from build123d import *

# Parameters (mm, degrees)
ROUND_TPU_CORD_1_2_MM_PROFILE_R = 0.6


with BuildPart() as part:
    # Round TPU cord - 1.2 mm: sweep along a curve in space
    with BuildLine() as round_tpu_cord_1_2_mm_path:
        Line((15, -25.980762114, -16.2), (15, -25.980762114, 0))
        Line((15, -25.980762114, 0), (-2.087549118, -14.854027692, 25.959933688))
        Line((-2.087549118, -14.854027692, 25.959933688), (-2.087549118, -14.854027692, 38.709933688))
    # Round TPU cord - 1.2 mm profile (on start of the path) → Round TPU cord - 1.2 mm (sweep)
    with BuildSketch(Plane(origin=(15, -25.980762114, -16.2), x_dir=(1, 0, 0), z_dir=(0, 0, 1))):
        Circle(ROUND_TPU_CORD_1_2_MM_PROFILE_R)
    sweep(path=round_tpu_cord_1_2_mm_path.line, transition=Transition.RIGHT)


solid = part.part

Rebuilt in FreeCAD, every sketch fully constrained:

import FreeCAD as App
import Part
import Sketcher
Q = App.Units.Quantity

doc = App.newDocument("Part")
body = doc.addObject("PartDesign::Body", "Body")

# Sketch on XY plane
sketch1 = doc.addObject("Sketcher::SketchObject", "Sketch")
body.addObject(sketch1)
sketch1.AttachmentSupport = (doc.XY_Plane, [""])
sketch1.MapMode = "FlatFace"
sketch1.AttachmentOffset = App.Placement(App.Vector(0, 0, -16.2), App.Rotation())
sketch1.addGeometry(Part.Circle(App.Vector(15, -26, 0), App.Vector(0, 0, 1), 0.6), False)
sketch1.addConstraint([
    Sketcher.Constraint("Diameter", 0, Q("1.2 mm")),
    Sketcher.Constraint("DistanceX", -1, 1, 0, 3, Q("15 mm")),
    Sketcher.Constraint("DistanceY", 0, 3, -1, 1, Q("25.980762 mm")),
])

# Sketch on an angled plane
sketch2 = doc.addObject("Sketcher::SketchObject", "Sketch001")
body.addObject(sketch2)
sketch2.Placement = App.Placement(App.Vector(-7.41392, -11.385706, 0), App.Rotation(App.Vector(-0.837999021, 0.545671734, 0), App.Vector(0, 0, 1), App.Vector(0.545671734, 0.837999021, 0), "ZXY"))
sketch2.addGeometry([
    Part.LineSegment(App.Vector(-27, -16, 0), App.Vector(-27, 0, 0)),
    Part.LineSegment(App.Vector(-27, 0, 0), App.Vector(-6, 26, 0)),
    Part.LineSegment(App.Vector(-6, 26, 0), App.Vector(-6, 39, 0)),
], False)
sketch2.addConstraint([
    Sketcher.Constraint("Coincident", 0, 2, 1, 1),
    Sketcher.Constraint("Coincident", 1, 2, 2, 1),
    Sketcher.Constraint("Vertical", 0),
    Sketcher.Constraint("Vertical", 2),
    Sketcher.Constraint("PointOnObject", 0, 2, -1),
    Sketcher.Constraint("DistanceY", 0, 1, 0, 2, Q("16.2 mm")),
    Sketcher.Constraint("DistanceY", 2, 1, 2, 2, Q("12.75 mm")),
    Sketcher.Constraint("DistanceX", 1, 2, -1, 1, Q("6.356059 mm")),
    Sketcher.Constraint("Distance", 1, Q("33.010706 mm")),
    Sketcher.Constraint("DistanceX", 0, 1, -1, 1, Q("26.746953 mm")),
])
doc.recompute()

additivepipe = doc.addObject("PartDesign::AdditivePipe", "AdditivePipe")
body.addObject(additivepipe)
additivepipe.Profile = sketch1
additivepipe.Spine = (sketch2, ["Edge1", "Edge2", "Edge3"])
additivepipe.Transition = "Right corner"

doc.recompute()
